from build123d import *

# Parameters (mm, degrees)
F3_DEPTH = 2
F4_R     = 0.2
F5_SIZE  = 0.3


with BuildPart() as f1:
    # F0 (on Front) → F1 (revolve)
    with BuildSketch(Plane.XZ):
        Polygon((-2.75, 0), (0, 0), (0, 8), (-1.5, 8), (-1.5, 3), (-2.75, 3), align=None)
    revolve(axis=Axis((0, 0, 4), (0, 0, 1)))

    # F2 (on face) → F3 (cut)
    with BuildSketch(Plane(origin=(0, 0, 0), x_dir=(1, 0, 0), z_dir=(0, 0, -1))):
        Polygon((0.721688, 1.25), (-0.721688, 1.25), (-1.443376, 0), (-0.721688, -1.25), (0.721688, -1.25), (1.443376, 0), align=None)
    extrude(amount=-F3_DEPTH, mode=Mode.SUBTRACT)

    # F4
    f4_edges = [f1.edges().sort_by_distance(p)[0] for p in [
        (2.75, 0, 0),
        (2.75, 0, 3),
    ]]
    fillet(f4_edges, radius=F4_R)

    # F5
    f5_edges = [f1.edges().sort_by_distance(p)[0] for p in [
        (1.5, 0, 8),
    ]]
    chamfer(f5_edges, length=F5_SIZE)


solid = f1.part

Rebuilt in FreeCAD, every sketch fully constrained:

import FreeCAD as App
import Part
import Sketcher
from FreeCAD import Vector
Q = App.Units.Quantity


def edges_at(feature, points):
    """Names of the edges that pass closest to the given points."""
    edges = feature.Shape.Edges
    near = lambda p: min(range(len(edges)), key=lambda i: edges[i].distToShape(Part.Vertex(*p))[0])
    return sorted({f"Edge{near(p) + 1}" for p in points})


def add_polygon(sketch, points):
    """Adds a closed chain of lines whose ends are joined by coincident constraints."""
    first, n = sketch.GeometryCount, len(points)
    for a, b in zip(points, points[1:] + points[:1]):
        sketch.addGeometry(Part.LineSegment(App.Vector(*a, 0), App.Vector(*b, 0)), False)
    for i in range(n):
        sketch.addConstraint(Sketcher.Constraint("Coincident", first + i, 2, first + (i + 1) % n, 1))

doc = App.newDocument("Part")
body = doc.addObject("PartDesign::Body", "Body")

# Sketch on XZ plane
sketch1 = body.newObject("Sketcher::SketchObject", "Sketch")
sketch1.AttachmentSupport = (doc.getObject("XZ_Plane"), [""])
sketch1.MapMode = "FlatFace"
add_polygon(sketch1, [(-2.75, 0), (0, 0), (0, 8), (-1.5, 8), (-1.5, 3), (-2.75, 3)])  # lines 0-5
sketch1.addConstraint(Sketcher.Constraint("Horizontal", 0))
sketch1.addConstraint(Sketcher.Constraint("Vertical", 1))
sketch1.addConstraint(Sketcher.Constraint("Horizontal", 2))
sketch1.addConstraint(Sketcher.Constraint("Vertical", 3))
sketch1.addConstraint(Sketcher.Constraint("Horizontal", 4))
sketch1.addConstraint(Sketcher.Constraint("Vertical", 5))
sketch1.addConstraint(Sketcher.Constraint("Coincident", 0, 2, -1, 1))
sketch1.addConstraint(Sketcher.Constraint("DistanceY", 1, 1, 1, 2, Q("8 mm")))
sketch1.addConstraint(Sketcher.Constraint("DistanceY", 3, 2, 3, 1, Q("5 mm")))
sketch1.addConstraint(Sketcher.Constraint("DistanceX", 2, 2, 2, 1, Q("1.5 mm")))
sketch1.addConstraint(Sketcher.Constraint("DistanceX", 0, 1, 0, 2, Q("2.75 mm")))
revolution = body.newObject("PartDesign::Revolution", "Revolution")
revolution.Profile = sketch1
revolution.ReferenceAxis = (sketch1, ["V_Axis"])
revolution.Angle = 360

# Sketch on XY plane
sketch2 = body.newObject("Sketcher::SketchObject", "Sketch001")
sketch2.AttachmentSupport = (doc.getObject("XY_Plane"), [""])
sketch2.MapMode = "FlatFace"
add_polygon(sketch2, [(0.721688, -1.25), (-0.721688, -1.25), (-1.443376, 0), (-0.721688, 1.25), (0.721688, 1.25), (1.443376, 0)])  # lines 0-5
sketch2.addConstraint(Sketcher.Constraint("Horizontal", 0))
sketch2.addConstraint(Sketcher.Constraint("Horizontal", 3))
sketch2.addConstraint(Sketcher.Constraint("Symmetric", 0, 2, 3, 2, -1, 1))
sketch2.addConstraint(Sketcher.Constraint("Symmetric", 1, 2, 4, 2, -1, 1))
sketch2.addConstraint(Sketcher.Constraint("PointOnObject", 1, 2, -1))
sketch2.addConstraint(Sketcher.Constraint("Parallel", 2, 5))
sketch2.addConstraint(Sketcher.Constraint("Vertical", 0, 2, 2, 2))
sketch2.addConstraint(Sketcher.Constraint("Angle", 1, Q("120.000006 deg")))
sketch2.addConstraint(Sketcher.Constraint("DistanceY", 0, 2, 2, 2, Q("2.5 mm")))
sketch2.addConstraint(Sketcher.Constraint("DistanceX", 0, 2, 0, 1, Q("1.443376 mm")))
pocket1 = body.newObject("PartDesign::Pocket", "Pocket")
pocket1.Profile = sketch2
pocket1.Length = 2
pocket1.Reversed = True
doc.recompute()

fillet = body.newObject("PartDesign::Fillet", "Fillet")
fillet.Base = (pocket1, edges_at(pocket1, [(2.75, 0, 0), (2.75, 0, 3)]))
fillet.Radius = 0.2
doc.recompute()

chamfer = body.newObject("PartDesign::Chamfer", "Chamfer")
chamfer.Base = (fillet, edges_at(fillet, [(1.5, 0, 8)]))
chamfer.Size = 0.3

doc.recompute()
